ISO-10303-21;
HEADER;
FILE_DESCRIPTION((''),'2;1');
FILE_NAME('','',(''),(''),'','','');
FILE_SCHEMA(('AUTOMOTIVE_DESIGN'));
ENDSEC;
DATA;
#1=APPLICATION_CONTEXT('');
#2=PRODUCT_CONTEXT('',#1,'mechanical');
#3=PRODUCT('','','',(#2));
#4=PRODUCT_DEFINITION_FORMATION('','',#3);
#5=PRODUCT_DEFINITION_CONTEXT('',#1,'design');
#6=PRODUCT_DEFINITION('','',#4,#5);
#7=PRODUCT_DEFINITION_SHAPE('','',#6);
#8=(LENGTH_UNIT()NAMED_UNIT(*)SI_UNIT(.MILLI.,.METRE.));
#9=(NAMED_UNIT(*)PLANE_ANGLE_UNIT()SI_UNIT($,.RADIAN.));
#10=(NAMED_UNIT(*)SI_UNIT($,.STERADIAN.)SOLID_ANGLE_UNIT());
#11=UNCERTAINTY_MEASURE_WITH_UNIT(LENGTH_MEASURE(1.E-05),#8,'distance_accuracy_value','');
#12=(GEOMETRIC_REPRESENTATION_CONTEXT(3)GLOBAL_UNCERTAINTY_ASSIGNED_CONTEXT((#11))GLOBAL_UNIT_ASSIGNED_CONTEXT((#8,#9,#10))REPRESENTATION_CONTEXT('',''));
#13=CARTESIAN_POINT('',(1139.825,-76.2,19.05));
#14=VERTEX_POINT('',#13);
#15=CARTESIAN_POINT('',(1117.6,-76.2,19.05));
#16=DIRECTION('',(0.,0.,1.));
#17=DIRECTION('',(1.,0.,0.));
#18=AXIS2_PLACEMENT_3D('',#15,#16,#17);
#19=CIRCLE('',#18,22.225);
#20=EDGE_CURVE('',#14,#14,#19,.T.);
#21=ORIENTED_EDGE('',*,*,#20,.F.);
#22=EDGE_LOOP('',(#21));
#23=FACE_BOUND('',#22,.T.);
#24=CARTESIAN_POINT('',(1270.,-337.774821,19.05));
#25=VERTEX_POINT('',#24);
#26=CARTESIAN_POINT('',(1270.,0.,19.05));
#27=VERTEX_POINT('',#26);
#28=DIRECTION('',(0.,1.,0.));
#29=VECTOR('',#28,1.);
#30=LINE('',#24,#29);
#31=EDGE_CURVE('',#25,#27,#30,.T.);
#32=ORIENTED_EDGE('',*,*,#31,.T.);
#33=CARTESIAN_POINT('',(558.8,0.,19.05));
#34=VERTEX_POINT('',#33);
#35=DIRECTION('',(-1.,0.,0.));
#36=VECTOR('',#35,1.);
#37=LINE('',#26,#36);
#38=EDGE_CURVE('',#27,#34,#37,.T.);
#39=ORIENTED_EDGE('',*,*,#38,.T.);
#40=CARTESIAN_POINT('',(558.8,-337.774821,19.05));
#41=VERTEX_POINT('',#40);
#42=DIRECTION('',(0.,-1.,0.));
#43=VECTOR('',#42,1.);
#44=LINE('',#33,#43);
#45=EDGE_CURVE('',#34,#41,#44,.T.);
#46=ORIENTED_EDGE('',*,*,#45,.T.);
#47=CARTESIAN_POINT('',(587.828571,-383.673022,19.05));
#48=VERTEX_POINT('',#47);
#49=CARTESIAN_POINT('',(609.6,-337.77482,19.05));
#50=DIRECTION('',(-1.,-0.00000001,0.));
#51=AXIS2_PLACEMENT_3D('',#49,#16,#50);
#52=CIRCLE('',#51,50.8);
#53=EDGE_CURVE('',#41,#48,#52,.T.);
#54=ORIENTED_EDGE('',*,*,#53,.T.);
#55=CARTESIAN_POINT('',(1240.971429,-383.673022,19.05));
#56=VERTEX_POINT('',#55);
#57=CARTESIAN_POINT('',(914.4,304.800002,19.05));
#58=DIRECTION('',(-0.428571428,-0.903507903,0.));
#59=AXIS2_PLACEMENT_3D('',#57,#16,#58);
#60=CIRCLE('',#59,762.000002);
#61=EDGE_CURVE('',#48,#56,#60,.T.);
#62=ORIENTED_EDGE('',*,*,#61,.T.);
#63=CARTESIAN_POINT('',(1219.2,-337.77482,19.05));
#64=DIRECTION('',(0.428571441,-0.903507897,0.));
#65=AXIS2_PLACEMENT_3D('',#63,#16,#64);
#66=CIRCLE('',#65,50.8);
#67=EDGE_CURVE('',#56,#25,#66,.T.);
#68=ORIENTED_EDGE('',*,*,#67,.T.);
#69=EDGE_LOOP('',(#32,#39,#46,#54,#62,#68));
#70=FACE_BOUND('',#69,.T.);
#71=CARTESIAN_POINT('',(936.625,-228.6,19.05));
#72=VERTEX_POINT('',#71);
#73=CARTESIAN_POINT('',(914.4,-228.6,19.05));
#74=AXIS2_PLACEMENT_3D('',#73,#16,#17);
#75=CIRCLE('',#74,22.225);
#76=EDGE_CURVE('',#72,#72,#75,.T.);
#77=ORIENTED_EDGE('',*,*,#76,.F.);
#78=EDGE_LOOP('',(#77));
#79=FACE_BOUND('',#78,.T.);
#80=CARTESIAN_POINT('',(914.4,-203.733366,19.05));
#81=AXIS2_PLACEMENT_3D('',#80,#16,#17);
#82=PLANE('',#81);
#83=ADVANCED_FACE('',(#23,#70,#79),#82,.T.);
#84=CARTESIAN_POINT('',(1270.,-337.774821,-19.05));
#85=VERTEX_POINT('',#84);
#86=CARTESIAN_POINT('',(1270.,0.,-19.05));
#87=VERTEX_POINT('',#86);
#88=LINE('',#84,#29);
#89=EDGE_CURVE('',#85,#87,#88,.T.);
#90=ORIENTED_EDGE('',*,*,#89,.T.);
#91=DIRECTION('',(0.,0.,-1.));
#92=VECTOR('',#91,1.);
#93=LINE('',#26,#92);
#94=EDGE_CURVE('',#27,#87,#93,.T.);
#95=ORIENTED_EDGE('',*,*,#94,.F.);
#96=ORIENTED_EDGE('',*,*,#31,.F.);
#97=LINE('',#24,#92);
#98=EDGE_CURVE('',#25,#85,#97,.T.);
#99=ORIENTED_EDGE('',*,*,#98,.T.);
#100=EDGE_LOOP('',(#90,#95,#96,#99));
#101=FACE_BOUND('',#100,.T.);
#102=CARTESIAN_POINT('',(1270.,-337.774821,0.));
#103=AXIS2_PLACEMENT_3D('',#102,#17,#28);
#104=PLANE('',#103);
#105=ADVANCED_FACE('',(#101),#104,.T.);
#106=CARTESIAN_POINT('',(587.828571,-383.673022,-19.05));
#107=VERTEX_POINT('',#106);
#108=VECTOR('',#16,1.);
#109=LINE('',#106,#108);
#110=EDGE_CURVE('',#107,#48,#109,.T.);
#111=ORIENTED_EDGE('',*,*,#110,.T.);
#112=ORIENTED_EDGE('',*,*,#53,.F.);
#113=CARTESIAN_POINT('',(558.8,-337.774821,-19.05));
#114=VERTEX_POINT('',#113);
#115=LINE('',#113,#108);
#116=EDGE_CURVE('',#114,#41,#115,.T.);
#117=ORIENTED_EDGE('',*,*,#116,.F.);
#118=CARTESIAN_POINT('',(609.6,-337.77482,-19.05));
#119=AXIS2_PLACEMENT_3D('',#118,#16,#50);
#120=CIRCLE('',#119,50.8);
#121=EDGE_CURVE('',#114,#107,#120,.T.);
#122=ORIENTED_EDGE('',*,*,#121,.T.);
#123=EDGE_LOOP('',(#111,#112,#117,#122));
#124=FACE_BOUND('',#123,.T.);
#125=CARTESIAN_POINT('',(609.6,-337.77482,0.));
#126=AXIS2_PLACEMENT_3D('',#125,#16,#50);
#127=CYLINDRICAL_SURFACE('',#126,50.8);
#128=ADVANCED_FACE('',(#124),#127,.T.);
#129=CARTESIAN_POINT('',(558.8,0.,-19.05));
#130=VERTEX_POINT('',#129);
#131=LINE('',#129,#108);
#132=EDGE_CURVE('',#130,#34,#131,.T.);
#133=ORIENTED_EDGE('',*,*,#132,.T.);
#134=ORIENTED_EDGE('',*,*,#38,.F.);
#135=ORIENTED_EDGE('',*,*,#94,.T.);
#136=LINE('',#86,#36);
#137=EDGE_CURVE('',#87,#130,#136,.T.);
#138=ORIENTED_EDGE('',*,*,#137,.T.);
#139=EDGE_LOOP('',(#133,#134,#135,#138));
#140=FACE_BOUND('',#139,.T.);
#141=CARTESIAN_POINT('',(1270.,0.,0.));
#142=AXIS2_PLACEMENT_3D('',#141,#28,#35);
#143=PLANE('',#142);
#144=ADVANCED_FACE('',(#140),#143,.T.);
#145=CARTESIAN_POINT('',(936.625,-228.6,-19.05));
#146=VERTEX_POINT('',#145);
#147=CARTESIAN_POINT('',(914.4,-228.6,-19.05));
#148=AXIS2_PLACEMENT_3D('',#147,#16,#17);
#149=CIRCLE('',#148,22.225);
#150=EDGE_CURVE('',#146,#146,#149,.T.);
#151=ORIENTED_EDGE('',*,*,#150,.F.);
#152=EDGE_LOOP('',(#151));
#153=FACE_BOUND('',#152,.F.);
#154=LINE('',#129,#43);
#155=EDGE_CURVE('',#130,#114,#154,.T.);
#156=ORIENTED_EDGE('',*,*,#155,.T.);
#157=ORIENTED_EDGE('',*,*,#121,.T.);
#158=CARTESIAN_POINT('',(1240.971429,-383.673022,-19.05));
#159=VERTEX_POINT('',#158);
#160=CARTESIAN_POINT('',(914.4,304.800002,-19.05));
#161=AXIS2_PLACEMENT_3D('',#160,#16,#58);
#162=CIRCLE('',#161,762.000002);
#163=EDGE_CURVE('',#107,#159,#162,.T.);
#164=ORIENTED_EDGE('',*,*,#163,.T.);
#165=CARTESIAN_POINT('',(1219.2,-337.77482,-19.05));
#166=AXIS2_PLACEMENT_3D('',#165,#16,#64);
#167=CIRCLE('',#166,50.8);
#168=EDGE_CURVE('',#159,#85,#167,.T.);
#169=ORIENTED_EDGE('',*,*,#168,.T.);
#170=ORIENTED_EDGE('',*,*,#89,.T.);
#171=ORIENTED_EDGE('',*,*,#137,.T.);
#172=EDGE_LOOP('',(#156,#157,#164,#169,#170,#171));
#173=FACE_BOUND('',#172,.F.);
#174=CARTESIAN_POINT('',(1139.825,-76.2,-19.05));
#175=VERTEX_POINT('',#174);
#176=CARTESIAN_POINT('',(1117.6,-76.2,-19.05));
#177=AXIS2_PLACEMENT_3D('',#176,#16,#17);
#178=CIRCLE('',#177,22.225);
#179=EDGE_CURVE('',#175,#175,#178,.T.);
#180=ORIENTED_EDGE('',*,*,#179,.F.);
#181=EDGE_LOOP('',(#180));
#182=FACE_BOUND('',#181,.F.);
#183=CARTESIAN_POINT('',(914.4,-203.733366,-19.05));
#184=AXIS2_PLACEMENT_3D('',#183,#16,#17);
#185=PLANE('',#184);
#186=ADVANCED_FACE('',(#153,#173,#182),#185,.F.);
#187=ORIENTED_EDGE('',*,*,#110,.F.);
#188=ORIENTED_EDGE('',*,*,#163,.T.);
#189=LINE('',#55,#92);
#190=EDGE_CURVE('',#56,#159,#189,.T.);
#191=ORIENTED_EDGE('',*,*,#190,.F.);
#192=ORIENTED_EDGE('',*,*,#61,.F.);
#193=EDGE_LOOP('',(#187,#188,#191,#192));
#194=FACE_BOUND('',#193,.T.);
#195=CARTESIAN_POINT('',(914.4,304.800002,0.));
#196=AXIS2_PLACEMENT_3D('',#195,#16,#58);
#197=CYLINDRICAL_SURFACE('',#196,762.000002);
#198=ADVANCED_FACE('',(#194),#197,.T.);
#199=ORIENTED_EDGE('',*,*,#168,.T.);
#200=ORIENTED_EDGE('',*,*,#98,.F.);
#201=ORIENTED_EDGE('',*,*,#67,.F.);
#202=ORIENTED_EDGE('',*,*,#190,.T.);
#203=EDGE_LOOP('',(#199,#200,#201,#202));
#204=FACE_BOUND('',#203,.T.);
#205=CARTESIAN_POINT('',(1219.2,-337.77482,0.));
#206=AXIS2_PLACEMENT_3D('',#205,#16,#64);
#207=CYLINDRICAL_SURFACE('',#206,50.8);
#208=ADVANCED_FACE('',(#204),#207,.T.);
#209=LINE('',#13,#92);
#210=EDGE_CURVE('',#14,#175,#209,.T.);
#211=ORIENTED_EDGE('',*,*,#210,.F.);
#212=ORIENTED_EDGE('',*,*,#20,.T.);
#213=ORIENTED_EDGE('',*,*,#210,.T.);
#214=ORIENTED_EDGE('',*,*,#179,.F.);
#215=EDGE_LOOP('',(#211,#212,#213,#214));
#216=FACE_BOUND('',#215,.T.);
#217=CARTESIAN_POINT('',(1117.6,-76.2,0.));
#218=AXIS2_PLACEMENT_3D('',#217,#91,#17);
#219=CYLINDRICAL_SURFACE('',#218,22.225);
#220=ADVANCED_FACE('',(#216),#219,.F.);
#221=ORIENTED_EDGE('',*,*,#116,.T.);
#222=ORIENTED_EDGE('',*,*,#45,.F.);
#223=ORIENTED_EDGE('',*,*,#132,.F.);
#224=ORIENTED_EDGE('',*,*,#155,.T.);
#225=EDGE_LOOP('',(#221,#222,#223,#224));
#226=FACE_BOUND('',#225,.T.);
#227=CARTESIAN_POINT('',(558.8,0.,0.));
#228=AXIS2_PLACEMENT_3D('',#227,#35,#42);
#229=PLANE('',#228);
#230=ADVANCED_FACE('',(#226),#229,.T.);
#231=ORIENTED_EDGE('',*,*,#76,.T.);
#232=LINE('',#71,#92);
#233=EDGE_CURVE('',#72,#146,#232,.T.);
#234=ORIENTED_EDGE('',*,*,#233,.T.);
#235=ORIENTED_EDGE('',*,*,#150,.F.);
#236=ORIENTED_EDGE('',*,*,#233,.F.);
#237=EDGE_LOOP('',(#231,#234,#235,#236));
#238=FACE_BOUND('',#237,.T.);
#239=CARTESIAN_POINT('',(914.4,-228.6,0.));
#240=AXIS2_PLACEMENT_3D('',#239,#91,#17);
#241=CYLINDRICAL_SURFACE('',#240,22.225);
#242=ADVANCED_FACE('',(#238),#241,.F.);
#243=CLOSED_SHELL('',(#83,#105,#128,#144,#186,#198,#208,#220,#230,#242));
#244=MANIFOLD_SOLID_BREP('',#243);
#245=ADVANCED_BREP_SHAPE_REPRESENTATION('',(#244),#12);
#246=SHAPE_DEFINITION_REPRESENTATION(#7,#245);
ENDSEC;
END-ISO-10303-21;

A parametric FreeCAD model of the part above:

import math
import FreeCAD as App
import Part
import Sketcher

V = App.Vector
Q = App.Units.Quantity

doc = App.newDocument("Part")
body = doc.addObject("PartDesign::Body", "Body")

sketch1 = body.newObject("Sketcher::SketchObject", "Sketch")
sketch1.AttachmentSupport = (doc.getObject("XY_Plane"), [""])
sketch1.MapMode = "FlatFace"
sketch1.addGeometry([
    Part.LineSegment(V(1270, 0, 0), V(559, 0, 0)),
    Part.LineSegment(V(559, 0, 0), V(559, -338, 0)),
    Part.ArcOfCircle(Part.Circle(V(610, -338, 0), V(0, 0, 1), 51), math.radians(-180), math.radians(-115)),
    Part.ArcOfCircle(Part.Circle(V(914, 305, 0), V(0, 0, 1), 762), math.radians(-115), math.radians(-65)),
    Part.ArcOfCircle(Part.Circle(V(1219, -338, 0), V(0, 0, 1), 51), math.radians(-65), math.radians(0)),
    Part.LineSegment(V(1270, -338, 0), V(1270, 0, 0)),
    Part.Circle(V(914, -229, 0), V(0, 0, 1), 22),
    Part.Circle(V(1118, -76, 0), V(0, 0, 1), 22),
], False)
sketch1.addConstraint([
    Sketcher.Constraint("Coincident", 0, 2, 1, 1),
    Sketcher.Constraint("Tangent", 1, 2, 2, 1),
    Sketcher.Constraint("Tangent", 2, 2, 3, 1),
    Sketcher.Constraint("Tangent", 3, 2, 4, 1),
    Sketcher.Constraint("Tangent", 4, 2, 5, 1),
    Sketcher.Constraint("Coincident", 5, 2, 0, 1),
    Sketcher.Constraint("Horizontal", 0),
    Sketcher.Constraint("Vertical", 1),
    Sketcher.Constraint("Vertical", 5),
    Sketcher.Constraint("Equal", 2, 4),
    Sketcher.Constraint("Equal", 6, 7),
    Sketcher.Constraint("PointOnObject", 0, 2, -1),
    Sketcher.Constraint("Horizontal", 2, 3, 4, 3),
    Sketcher.Constraint("Vertical", 3, 3, 6, 3),
    Sketcher.Constraint("Radius", 2, Q("2 in")),
    Sketcher.Constraint("Radius", 3, Q("30.0000001 in")),
    Sketcher.Constraint("Diameter", 6, Q("1.75 in")),
    Sketcher.Constraint("DistanceX", 0, 2, 0, 1, Q("28 in")),
    Sketcher.Constraint("DistanceX", -1, 1, 2, 3, Q("24 in")),
    Sketcher.Constraint("DistanceY", -1, 1, 3, 3, Q("12.0000001 in")),
    Sketcher.Constraint("DistanceY", 6, 3, -1, 1, Q("9 in")),
    Sketcher.Constraint("DistanceX", -1, 1, 7, 3, Q("44 in")),
    Sketcher.Constraint("DistanceY", 7, 3, -1, 1, Q("3 in")),
])
pad1 = body.newObject("PartDesign::Pad", "Pad")
pad1.Profile = sketch1
pad1.Length = Q("1.5 in")
pad1.Midplane = True

doc.recompute()
